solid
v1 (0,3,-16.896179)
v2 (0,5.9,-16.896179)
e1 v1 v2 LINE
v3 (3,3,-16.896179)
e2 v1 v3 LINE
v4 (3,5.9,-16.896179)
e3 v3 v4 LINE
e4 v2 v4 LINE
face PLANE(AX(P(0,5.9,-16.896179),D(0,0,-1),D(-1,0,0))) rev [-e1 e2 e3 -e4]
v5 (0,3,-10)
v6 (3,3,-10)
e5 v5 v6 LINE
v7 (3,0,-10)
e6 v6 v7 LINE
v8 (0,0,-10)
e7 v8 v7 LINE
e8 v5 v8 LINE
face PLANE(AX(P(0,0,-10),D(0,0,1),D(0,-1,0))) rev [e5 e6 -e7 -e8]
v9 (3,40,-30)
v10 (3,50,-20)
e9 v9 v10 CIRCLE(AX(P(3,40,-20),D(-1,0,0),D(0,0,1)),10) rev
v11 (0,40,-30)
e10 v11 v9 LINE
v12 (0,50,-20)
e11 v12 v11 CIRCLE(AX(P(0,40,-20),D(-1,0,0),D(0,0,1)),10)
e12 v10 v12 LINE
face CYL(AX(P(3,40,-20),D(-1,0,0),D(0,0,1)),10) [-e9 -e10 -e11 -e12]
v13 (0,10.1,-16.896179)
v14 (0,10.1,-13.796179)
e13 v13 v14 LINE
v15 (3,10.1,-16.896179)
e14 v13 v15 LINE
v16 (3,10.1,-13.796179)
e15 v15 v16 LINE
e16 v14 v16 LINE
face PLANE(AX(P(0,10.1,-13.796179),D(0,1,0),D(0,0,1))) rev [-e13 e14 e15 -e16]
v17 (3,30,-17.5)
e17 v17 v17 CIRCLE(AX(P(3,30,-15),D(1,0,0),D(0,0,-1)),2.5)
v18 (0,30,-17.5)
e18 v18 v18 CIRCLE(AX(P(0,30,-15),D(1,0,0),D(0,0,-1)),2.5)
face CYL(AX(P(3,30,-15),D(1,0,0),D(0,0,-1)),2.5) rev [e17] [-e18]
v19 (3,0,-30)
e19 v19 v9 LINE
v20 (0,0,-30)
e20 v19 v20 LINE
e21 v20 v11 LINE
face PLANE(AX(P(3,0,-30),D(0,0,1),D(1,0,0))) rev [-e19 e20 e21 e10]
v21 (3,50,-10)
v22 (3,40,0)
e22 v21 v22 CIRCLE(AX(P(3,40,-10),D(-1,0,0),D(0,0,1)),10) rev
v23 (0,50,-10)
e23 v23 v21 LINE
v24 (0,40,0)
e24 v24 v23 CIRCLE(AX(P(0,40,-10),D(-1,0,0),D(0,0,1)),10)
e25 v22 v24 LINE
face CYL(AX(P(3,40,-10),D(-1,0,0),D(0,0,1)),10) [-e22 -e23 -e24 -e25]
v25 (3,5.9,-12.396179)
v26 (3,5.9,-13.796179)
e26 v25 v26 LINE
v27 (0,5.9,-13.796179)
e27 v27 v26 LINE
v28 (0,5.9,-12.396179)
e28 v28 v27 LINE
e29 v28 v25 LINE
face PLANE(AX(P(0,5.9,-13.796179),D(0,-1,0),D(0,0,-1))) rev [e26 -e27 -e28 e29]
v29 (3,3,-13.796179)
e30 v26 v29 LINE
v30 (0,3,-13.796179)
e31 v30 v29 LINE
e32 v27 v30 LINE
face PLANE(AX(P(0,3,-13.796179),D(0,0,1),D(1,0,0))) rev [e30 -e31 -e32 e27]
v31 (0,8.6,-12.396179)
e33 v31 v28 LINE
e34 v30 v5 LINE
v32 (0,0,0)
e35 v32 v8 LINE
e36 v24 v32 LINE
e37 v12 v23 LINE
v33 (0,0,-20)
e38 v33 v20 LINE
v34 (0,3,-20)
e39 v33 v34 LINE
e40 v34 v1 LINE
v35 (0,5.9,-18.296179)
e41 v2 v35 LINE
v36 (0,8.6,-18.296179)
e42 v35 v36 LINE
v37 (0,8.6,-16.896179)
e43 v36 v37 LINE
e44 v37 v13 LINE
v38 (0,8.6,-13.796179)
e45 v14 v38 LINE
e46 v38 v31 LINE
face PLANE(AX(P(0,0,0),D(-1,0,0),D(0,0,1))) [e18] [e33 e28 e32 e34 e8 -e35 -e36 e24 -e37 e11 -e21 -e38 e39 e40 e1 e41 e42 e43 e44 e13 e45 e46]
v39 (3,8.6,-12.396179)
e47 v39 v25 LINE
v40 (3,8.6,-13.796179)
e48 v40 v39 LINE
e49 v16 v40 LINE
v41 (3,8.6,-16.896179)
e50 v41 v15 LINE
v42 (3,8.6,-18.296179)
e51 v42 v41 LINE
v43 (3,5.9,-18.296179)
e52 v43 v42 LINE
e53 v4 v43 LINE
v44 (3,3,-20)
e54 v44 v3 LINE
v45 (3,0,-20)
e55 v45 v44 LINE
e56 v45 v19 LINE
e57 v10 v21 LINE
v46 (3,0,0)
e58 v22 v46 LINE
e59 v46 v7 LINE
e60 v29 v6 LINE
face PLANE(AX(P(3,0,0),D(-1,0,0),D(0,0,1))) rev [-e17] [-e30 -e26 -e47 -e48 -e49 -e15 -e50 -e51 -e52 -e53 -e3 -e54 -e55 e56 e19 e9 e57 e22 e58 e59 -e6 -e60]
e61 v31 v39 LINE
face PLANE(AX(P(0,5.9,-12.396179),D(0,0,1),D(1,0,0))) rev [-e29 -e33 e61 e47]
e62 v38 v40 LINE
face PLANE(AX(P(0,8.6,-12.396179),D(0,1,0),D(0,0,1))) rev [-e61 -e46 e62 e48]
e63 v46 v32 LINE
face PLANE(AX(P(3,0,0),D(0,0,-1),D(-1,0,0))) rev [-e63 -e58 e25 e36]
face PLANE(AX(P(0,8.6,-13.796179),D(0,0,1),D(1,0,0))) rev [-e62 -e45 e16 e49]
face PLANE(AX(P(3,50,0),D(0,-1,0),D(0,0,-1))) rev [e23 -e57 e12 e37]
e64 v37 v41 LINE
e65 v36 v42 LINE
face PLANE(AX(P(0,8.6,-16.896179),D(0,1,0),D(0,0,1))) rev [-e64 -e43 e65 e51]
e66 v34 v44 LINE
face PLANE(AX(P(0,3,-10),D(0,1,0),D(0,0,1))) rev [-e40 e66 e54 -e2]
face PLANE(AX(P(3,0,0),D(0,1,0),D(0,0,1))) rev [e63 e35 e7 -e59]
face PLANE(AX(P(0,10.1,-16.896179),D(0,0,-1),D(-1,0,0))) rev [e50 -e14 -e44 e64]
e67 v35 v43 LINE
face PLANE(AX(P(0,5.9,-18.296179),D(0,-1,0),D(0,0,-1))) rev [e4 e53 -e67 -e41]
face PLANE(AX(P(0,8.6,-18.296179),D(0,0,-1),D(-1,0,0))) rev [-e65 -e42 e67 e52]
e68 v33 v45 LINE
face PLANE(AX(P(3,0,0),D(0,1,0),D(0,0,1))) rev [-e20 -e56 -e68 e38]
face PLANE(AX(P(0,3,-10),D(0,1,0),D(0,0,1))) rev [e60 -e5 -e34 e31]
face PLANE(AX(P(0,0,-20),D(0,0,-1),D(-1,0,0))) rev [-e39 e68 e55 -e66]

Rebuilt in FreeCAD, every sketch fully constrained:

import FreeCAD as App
import Part
import Sketcher
from FreeCAD import Vector
Q = App.Units.Quantity


def edges_at(feature, points):
    """Names of the edges that pass closest to the given points."""
    edges = feature.Shape.Edges
    near = lambda p: min(range(len(edges)), key=lambda i: edges[i].distToShape(Part.Vertex(*p))[0])
    return sorted({f"Edge{near(p) + 1}" for p in points})

doc = App.newDocument("Part")
body = doc.addObject("PartDesign::Body", "Body")

sketch1 = doc.addObject("Sketcher::SketchObject", "Sketch")
body.addObject(sketch1)
sketch1.AttachmentSupport = (doc.YZ_Plane, [""])
sketch1.MapMode = "FlatFace"
sketch1.addGeometry([
    Part.LineSegment(Vector(50, 0, 0), Vector(0, 0, 0)),
    Part.LineSegment(Vector(0, 0, 0), Vector(0, -30, 0)),
    Part.LineSegment(Vector(0, -30, 0), Vector(50, -30, 0)),
    Part.LineSegment(Vector(50, -30, 0), Vector(50, 0, 0)),
], False)
sketch1.addConstraint([
    Sketcher.Constraint("Coincident", 0, 2, 1, 1),
    Sketcher.Constraint("Coincident", 1, 2, 2, 1),
    Sketcher.Constraint("Coincident", 2, 2, 3, 1),
    Sketcher.Constraint("Coincident", 3, 2, 0, 1),
    Sketcher.Constraint("Horizontal", 0),
    Sketcher.Constraint("Vertical", 1),
    Sketcher.Constraint("Horizontal", 2),
    Sketcher.Constraint("Vertical", 3),
    Sketcher.Constraint("Coincident", 0, 2, -1, 1),
    Sketcher.Constraint("DistanceX", 0, 2, 0, 1, Q("50 mm")),
    Sketcher.Constraint("DistanceY", 1, 2, 1, 1, Q("30 mm")),
])
pad1 = doc.addObject("PartDesign::Pad", "Pad")
body.addObject(pad1)
pad1.Profile = sketch1
pad1.Length = 3
doc.recompute()

fillet = doc.addObject("PartDesign::Fillet", "Fillet")
body.addObject(fillet)
fillet.Base = (pad1, edges_at(pad1, [(1.5, 50, 0), (1.5, 50, -30)]))
fillet.Radius = 10

sketch2 = doc.addObject("Sketcher::SketchObject", "Sketch001")
body.addObject(sketch2)
sketch2.AttachmentSupport = (doc.YZ_Plane, [""])
sketch2.MapMode = "FlatFace"
sketch2.AttachmentOffset = App.Placement(Vector(0, 0, 3), App.Rotation())
sketch2.addGeometry([
    Part.LineSegment(Vector(3, -10, 0), Vector(0, -10, 0)),
    Part.LineSegment(Vector(0, -10, 0), Vector(0, -20, 0)),
    Part.LineSegment(Vector(0, -20, 0), Vector(3, -20, 0)),
    Part.LineSegment(Vector(3, -20, 0), Vector(3, -10, 0)),
], False)
sketch2.addConstraint([
    Sketcher.Constraint("Coincident", 0, 2, 1, 1),
    Sketcher.Constraint("Coincident", 1, 2, 2, 1),
    Sketcher.Constraint("Coincident", 2, 2, 3, 1),
    Sketcher.Constraint("Coincident", 3, 2, 0, 1),
    Sketcher.Constraint("Horizontal", 0),
    Sketcher.Constraint("Vertical", 1),
    Sketcher.Constraint("Horizontal", 2),
    Sketcher.Constraint("Vertical", 3),
    Sketcher.Constraint("PointOnObject", 0, 2, -2),
    Sketcher.Constraint("DistanceX", 0, 2, 0, 1, Q("3 mm")),
    Sketcher.Constraint("DistanceY", 1, 2, 1, 1, Q("10 mm")),
    Sketcher.Constraint("DistanceY", 0, 2, -1, 1, Q("10 mm")),
])
pocket1 = doc.addObject("PartDesign::Pocket", "Pocket")
body.addObject(pocket1)
pocket1.Profile = sketch2
pocket1.Length = 3

sketch3 = doc.addObject("Sketcher::SketchObject", "Sketch002")
body.addObject(sketch3)
sketch3.AttachmentSupport = (doc.YZ_Plane, [""])
sketch3.MapMode = "FlatFace"
sketch3.AttachmentOffset = App.Placement(Vector(0, 0, 3), App.Rotation())
sketch3.addGeometry(Part.Circle(Vector(30, -15, 0), Vector(0, 0, 1), 2.5), False)
sketch3.addConstraint([
    Sketcher.Constraint("Diameter", 0, Q("5 mm")),
    Sketcher.Constraint("DistanceX", -1, 1, 0, 3, Q("30 mm")),
    Sketcher.Constraint("DistanceY", 0, 3, -1, 1, Q("15 mm")),
])
doc.recompute()
hole = doc.addObject("PartDesign::Hole", "Hole")
body.addObject(hole)
hole.Profile = sketch3
hole.ThreadType = "None"
hole.Diameter = 5
hole.DepthType = "Dimension"
hole.Depth = 3
hole.DrillPoint = "Angled"
hole.DrillPointAngle = 118

sketch4 = doc.addObject("Sketcher::SketchObject", "Sketch003")
body.addObject(sketch4)
sketch4.AttachmentSupport = (doc.YZ_Plane, [""])
sketch4.MapMode = "FlatFace"
sketch4.AttachmentOffset = App.Placement(Vector(0, 0, 3), App.Rotation())
sketch4.addGeometry([
    Part.LineSegment(Vector(5.9, -13.8, 0), Vector(3, -13.8, 0)),
    Part.LineSegment(Vector(3, -13.8, 0), Vector(3, -16.9, 0)),
    Part.LineSegment(Vector(3, -16.9, 0), Vector(5.9, -16.9, 0)),
    Part.LineSegment(Vector(5.9, -16.9, 0), Vector(5.9, -18.3, 0)),
    Part.LineSegment(Vector(5.9, -18.3, 0), Vector(8.6, -18.3, 0)),
    Part.LineSegment(Vector(8.6, -18.3, 0), Vector(8.6, -16.9, 0)),
    Part.LineSegment(Vector(8.6, -16.9, 0), Vector(10.1, -16.9, 0)),
    Part.LineSegment(Vector(10.1, -16.9, 0), Vector(10.1, -13.8, 0)),
    Part.LineSegment(Vector(10.1, -13.8, 0), Vector(8.6, -13.8, 0)),
    Part.LineSegment(Vector(8.6, -13.8, 0), Vector(8.6, -12.4, 0)),
    Part.LineSegment(Vector(8.6, -12.4, 0), Vector(5.9, -12.4, 0)),
    Part.LineSegment(Vector(5.9, -12.4, 0), Vector(5.9, -13.8, 0)),
], False)
sketch4.addConstraint([
    Sketcher.Constraint("Coincident", 0, 2, 1, 1),
    Sketcher.Constraint("Coincident", 1, 2, 2, 1),
    Sketcher.Constraint("Coincident", 2, 2, 3, 1),
    Sketcher.Constraint("Coincident", 3, 2, 4, 1),
    Sketcher.Constraint("Coincident", 4, 2, 5, 1),
    Sketcher.Constraint("Coincident", 5, 2, 6, 1),
    Sketcher.Constraint("Coincident", 6, 2, 7, 1),
    Sketcher.Constraint("Coincident", 7, 2, 8, 1),
    Sketcher.Constraint("Coincident", 8, 2, 9, 1),
    Sketcher.Constraint("Coincident", 9, 2, 10, 1),
    Sketcher.Constraint("Coincident", 10, 2, 11, 1),
    Sketcher.Constraint("Coincident", 11, 2, 0, 1),
    Sketcher.Constraint("Horizontal", 0),
    Sketcher.Constraint("Vertical", 1),
    Sketcher.Constraint("Horizontal", 2),
    Sketcher.Constraint("Vertical", 3),
    Sketcher.Constraint("Horizontal", 4),
    Sketcher.Constraint("Vertical", 5),
    Sketcher.Constraint("Horizontal", 6),
    Sketcher.Constraint("Vertical", 7),
    Sketcher.Constraint("Horizontal", 8),
    Sketcher.Constraint("Vertical", 9),
    Sketcher.Constraint("Horizontal", 10),
    Sketcher.Constraint("Vertical", 11),
    Sketcher.Constraint("Horizontal", 2, 2, 5, 2),
    Sketcher.Constraint("Horizontal", 0, 2, 7, 2),
    Sketcher.Constraint("Vertical", 5, 2, 8, 2),
    Sketcher.Constraint("Vertical", 3, 2, 10, 2),
    Sketcher.Constraint("Equal", 5, 9),
    Sketcher.Constraint("DistanceX", 0, 2, 0, 1, Q("2.9 mm")),
    Sketcher.Constraint("DistanceX", 4, 1, 4, 2, Q("2.7 mm")),
    Sketcher.Constraint("DistanceX", 6, 1, 6, 2, Q("1.5 mm")),
    Sketcher.Constraint("DistanceY", 1, 2, 1, 1, Q("3.1 mm")),
    Sketcher.Constraint("DistanceY", 3, 2, 3, 1, Q("1.4 mm")),
    Sketcher.Constraint("DistanceX", -1, 1, 0, 2, Q("3 mm")),
    Sketcher.Constraint("DistanceY", 0, 2, -1, 1, Q("13.796179 mm")),
])
pocket2 = doc.addObject("PartDesign::Pocket", "Pocket001")
body.addObject(pocket2)
pocket2.Profile = sketch4
pocket2.Length = 3

doc.recompute()
